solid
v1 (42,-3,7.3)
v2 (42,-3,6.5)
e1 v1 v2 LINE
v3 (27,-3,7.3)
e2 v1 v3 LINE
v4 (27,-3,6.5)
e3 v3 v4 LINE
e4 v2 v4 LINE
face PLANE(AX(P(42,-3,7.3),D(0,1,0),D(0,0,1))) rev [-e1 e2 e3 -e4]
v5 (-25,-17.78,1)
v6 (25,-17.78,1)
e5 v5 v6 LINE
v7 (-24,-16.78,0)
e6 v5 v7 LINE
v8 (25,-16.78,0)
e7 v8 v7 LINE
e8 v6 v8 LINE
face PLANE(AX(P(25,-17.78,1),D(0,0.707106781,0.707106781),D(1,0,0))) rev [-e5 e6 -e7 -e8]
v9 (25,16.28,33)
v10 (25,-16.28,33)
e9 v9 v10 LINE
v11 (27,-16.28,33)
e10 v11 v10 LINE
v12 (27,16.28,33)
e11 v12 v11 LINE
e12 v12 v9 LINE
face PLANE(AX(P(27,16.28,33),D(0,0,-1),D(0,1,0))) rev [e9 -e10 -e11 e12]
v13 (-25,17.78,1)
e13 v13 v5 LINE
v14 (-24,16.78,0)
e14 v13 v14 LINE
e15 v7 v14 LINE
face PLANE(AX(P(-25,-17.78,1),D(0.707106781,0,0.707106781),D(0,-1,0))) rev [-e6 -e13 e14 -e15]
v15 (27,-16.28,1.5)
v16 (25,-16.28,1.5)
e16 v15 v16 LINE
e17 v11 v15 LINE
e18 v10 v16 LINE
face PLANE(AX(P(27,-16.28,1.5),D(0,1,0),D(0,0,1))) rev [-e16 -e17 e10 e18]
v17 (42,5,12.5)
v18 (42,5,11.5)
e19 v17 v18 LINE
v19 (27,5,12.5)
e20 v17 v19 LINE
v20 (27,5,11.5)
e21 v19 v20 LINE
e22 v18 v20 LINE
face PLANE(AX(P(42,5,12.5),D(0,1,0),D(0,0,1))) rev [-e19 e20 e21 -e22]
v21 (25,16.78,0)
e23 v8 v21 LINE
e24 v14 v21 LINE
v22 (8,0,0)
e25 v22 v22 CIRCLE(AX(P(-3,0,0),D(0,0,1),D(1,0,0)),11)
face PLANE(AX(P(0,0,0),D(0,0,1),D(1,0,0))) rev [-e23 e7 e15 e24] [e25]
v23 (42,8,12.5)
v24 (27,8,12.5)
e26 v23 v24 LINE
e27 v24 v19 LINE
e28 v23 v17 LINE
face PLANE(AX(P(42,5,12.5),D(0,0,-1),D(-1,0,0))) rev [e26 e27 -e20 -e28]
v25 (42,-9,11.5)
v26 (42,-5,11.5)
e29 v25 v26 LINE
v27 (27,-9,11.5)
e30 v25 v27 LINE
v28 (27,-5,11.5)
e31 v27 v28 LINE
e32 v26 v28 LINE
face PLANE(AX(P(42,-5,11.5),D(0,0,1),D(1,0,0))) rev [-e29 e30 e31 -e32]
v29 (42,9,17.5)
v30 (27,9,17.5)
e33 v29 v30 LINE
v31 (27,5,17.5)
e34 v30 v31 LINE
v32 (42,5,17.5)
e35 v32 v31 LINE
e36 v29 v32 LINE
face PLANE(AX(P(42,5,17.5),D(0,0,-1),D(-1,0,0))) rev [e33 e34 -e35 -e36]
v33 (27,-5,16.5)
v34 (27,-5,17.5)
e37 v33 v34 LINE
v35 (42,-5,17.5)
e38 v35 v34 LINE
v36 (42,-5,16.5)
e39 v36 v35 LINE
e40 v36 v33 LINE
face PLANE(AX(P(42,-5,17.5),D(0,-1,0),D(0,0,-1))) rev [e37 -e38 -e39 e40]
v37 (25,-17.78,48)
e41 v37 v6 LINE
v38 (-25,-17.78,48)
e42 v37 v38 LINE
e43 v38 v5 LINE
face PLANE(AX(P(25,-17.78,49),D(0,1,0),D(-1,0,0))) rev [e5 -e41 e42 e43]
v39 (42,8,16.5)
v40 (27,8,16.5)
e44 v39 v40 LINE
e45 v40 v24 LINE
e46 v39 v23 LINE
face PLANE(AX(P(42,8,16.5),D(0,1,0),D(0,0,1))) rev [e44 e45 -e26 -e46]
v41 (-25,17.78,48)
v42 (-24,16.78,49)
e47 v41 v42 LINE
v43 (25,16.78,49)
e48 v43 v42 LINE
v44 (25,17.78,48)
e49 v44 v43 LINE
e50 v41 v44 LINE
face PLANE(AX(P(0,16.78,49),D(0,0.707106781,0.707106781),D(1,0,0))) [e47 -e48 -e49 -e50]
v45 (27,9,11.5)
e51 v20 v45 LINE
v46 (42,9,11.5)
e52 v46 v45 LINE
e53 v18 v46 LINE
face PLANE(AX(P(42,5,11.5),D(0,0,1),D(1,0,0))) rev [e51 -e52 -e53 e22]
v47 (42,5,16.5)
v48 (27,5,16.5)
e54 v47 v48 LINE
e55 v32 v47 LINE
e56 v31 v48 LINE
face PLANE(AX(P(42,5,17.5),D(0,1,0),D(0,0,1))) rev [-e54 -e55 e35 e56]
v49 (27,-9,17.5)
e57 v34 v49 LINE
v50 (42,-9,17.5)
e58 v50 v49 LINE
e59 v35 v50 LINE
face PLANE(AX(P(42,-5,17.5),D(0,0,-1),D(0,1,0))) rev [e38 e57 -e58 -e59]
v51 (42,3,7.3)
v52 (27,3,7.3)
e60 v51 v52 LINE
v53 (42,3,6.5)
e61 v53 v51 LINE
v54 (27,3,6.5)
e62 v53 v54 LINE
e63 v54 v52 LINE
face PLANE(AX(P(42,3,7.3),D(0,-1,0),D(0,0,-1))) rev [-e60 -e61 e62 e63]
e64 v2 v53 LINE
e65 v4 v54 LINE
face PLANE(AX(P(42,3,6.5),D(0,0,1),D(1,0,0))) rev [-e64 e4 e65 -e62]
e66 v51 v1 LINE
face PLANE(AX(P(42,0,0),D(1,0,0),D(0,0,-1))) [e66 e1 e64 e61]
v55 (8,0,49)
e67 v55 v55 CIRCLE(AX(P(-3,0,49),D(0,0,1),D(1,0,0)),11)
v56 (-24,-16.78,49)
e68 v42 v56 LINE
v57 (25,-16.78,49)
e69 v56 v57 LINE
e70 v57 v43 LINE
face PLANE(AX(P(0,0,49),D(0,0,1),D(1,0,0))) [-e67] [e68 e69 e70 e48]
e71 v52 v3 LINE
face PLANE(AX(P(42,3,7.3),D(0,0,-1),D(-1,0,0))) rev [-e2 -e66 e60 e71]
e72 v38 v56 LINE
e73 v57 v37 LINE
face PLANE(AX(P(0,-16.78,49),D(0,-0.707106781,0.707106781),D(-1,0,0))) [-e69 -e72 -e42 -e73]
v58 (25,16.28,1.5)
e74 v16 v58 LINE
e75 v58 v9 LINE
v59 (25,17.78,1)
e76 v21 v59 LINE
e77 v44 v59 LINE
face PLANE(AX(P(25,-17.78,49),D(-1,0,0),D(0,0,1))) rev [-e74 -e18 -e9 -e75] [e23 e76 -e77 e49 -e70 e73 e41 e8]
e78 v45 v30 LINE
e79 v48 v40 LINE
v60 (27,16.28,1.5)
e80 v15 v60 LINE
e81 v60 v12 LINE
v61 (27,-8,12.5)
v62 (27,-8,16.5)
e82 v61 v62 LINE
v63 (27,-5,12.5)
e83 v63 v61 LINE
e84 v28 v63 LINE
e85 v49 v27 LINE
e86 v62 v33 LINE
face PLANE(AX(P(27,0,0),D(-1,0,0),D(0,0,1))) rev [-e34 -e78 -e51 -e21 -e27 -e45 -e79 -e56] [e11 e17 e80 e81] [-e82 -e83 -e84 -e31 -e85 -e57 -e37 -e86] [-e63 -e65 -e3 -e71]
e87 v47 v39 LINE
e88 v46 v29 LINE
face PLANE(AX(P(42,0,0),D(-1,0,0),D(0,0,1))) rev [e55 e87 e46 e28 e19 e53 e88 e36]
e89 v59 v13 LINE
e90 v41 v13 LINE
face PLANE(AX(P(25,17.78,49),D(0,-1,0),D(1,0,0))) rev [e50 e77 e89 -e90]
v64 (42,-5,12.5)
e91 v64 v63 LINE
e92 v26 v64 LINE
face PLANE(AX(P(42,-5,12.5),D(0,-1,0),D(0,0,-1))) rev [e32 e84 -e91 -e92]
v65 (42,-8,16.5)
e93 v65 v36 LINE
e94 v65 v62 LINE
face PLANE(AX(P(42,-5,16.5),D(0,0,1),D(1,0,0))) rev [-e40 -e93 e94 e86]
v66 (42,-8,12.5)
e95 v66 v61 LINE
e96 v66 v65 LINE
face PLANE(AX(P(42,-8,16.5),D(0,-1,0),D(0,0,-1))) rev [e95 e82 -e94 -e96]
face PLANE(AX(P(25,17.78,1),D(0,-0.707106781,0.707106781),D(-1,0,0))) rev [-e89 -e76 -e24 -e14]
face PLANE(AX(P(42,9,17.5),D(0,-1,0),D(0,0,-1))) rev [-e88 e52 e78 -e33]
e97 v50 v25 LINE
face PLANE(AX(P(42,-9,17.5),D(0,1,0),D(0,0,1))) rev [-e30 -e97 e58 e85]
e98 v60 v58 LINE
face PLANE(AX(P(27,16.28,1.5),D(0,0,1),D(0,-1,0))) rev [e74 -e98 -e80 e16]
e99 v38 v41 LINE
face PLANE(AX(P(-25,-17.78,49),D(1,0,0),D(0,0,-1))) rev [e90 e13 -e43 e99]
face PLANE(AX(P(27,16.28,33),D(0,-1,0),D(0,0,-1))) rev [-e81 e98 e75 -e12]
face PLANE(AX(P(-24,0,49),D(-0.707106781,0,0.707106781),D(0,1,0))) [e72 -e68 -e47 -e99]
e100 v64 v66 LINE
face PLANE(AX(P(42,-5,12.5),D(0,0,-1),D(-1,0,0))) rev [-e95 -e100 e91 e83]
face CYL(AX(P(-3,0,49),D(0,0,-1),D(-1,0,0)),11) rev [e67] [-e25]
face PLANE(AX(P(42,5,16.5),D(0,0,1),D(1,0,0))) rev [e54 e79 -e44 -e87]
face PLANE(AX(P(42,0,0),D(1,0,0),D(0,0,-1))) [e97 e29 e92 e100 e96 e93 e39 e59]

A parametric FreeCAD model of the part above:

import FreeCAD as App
import Part
import Sketcher
from FreeCAD import Vector
Q = App.Units.Quantity


def edges_at(feature, points):
    """Names of the edges that pass closest to the given points."""
    edges = feature.Shape.Edges
    near = lambda p: min(range(len(edges)), key=lambda i: edges[i].distToShape(Part.Vertex(*p))[0])
    return sorted({f"Edge{near(p) + 1}" for p in points})


def add_polygon(sketch, points):
    """Adds a closed chain of lines whose ends are joined by coincident constraints."""
    first, n = sketch.GeometryCount, len(points)
    for a, b in zip(points, points[1:] + points[:1]):
        sketch.addGeometry(Part.LineSegment(App.Vector(*a, 0), App.Vector(*b, 0)), False)
    for i in range(n):
        sketch.addConstraint(Sketcher.Constraint("Coincident", first + i, 2, first + (i + 1) % n, 1))

doc = App.newDocument("Part")
params = doc.addObject("Spreadsheet::Sheet", "Params")
for row, (alias, value) in enumerate([
    ("sketch1_diameter", "22 mm"),
    ("sketch1_width", "50 mm"),
    ("sketch1_height", "35.56 mm"),
    ("pad1_length", "49 mm"),
    ("sketch2_height", "31.5 mm"),
    ("sketch2_width", "32.56 mm"),
    ("pad2_length", "2 mm"),
    ("sketch3_width", "3 mm"),
    ("sketch3_width2", "4 mm"),
    ("sketch3_width3", "6 mm"),
    ("sketch3_height", "0.8 mm"),
    ("pad3_length", "15 mm"),
    ("chamfer_size", "1 mm"),
], start=1):
    params.set(f"A{row}", alias)
    params.set(f"B{row}", "=" + value)
    params.setAlias(f"B{row}", alias)

body = doc.addObject("PartDesign::Body", "Body")

sketch1 = body.newObject("Sketcher::SketchObject", "Sketch")
sketch1.AttachmentSupport = (doc.getObject("XY_Plane"), [""])
sketch1.MapMode = "FlatFace"
add_polygon(sketch1, [(-25, 18), (-25, -18), (25, -18), (25, 18)])
sketch1.addGeometry(Part.Circle(Vector(-3, 0, 0), Vector(0, 0, 1), 11), False)
sketch1.addConstraint([
    Sketcher.Constraint("Vertical", 0),
    Sketcher.Constraint("Horizontal", 1),
    Sketcher.Constraint("Vertical", 2),
    Sketcher.Constraint("Horizontal", 3),
    Sketcher.Constraint("Symmetric", 0, 2, 2, 2, -1, 1),
    Sketcher.Constraint("PointOnObject", 4, 3, -1),
    Sketcher.Constraint("Diameter", 4, Q("22 mm")),
    Sketcher.Constraint("DistanceX", 1, 1, 1, 2, Q("50 mm")),
    Sketcher.Constraint("DistanceX", 4, 3, -1, 1, Q("3 mm")),
    Sketcher.Constraint("DistanceY", 0, 2, 0, 1, Q("35.56 mm")),
])
sketch1.setExpression("Constraints[10]", "Params.sketch1_diameter")
sketch1.setExpression("Constraints[11]", "Params.sketch1_width")
sketch1.setExpression("Constraints[13]", "Params.sketch1_height")
pad1 = body.newObject("PartDesign::Pad", "Pad")
pad1.Profile = sketch1
pad1.setExpression("Length", "Params.pad1_length")

sketch2 = body.newObject("Sketcher::SketchObject", "Sketch001")
sketch2.AttachmentSupport = (doc.getObject("YZ_Plane"), [""])
sketch2.MapMode = "FlatFace"
sketch2.AttachmentOffset = App.Placement(Vector(0, 0, 25), App.Rotation())
add_polygon(sketch2, [(16, 33), (-16, 33), (-16, 2), (16, 2)])
sketch2.addConstraint([
    Sketcher.Constraint("Horizontal", 0),
    Sketcher.Constraint("Vertical", 1),
    Sketcher.Constraint("Horizontal", 2),
    Sketcher.Constraint("Vertical", 3),
    Sketcher.Constraint("DistanceY", 1, 2, 1, 1, Q("31.5 mm")),
    Sketcher.Constraint("DistanceY", -1, 1, 0, 2, Q("33 mm")),
    Sketcher.Constraint("DistanceX", 0, 2, 0, 1, Q("32.56 mm")),
    Sketcher.Constraint("DistanceX", 0, 2, -1, 1, Q("16.28 mm")),
])
sketch2.setExpression("Constraints[8]", "Params.sketch2_height")
sketch2.setExpression("Constraints[10]", "Params.sketch2_width")
pad2 = body.newObject("PartDesign::Pad", "Pad001")
pad2.Profile = sketch2
pad2.setExpression("Length", "Params.pad2_length")

sketch3 = body.newObject("Sketcher::SketchObject", "Sketch002")
sketch3.AttachmentSupport = (doc.getObject("YZ_Plane"), [""])
sketch3.MapMode = "FlatFace"
sketch3.AttachmentOffset = App.Placement(Vector(0, 0, 27), App.Rotation())
add_polygon(sketch3, [(5, 16.5), (8, 16.5), (8, 12.5), (5, 12.5), (5, 11.5), (9, 11.5), (9, 17.5), (5, 17.5)])
add_polygon(sketch3, [(3, 7.3), (-3, 7.3), (-3, 6.5), (3, 6.5)])
add_polygon(sketch3, [(-5, 11.5), (-5, 12.5), (-8, 12.5), (-8, 16.5), (-5, 16.5), (-5, 17.5), (-9, 17.5), (-9, 11.5)])
sketch3.addConstraint([
    Sketcher.Constraint("Horizontal", 0),
    Sketcher.Constraint("Vertical", 1),
    Sketcher.Constraint("Horizontal", 2),
    Sketcher.Constraint("Vertical", 3),
    Sketcher.Constraint("Horizontal", 4),
    Sketcher.Constraint("Vertical", 5),
    Sketcher.Constraint("Horizontal", 6),
    Sketcher.Constraint("Vertical", 7),
    Sketcher.Constraint("Horizontal", 8),
    Sketcher.Constraint("Vertical", 9),
    Sketcher.Constraint("Horizontal", 10),
    Sketcher.Constraint("Vertical", 11),
    Sketcher.Constraint("Vertical", 12),
    Sketcher.Constraint("Horizontal", 13),
    Sketcher.Constraint("Vertical", 14),
    Sketcher.Constraint("Horizontal", 15),
    Sketcher.Constraint("Vertical", 16),
    Sketcher.Constraint("Horizontal", 17),
    Sketcher.Constraint("Vertical", 18),
    Sketcher.Constraint("Horizontal", 19),
    Sketcher.Constraint("Symmetric", 2, 2, 12, 2, -2),
    Sketcher.Constraint("Symmetric", 0, 2, 14, 2, -2),
    Sketcher.Constraint("Symmetric", 6, 2, 16, 2, -2),
    Sketcher.Constraint("Symmetric", 4, 2, 18, 2, -2),
    Sketcher.Constraint("Vertical", 3, 2, 6, 2),
    Sketcher.Constraint("Equal", 19, 1),
    Sketcher.Constraint("Equal", 10, 5),
    Sketcher.Constraint("Equal", 3, 7),
    Sketcher.Constraint("DistanceX", 0, 1, 0, 2, Q("3 mm")),
    Sketcher.Constraint("DistanceX", 4, 1, 4, 2, Q("4 mm")),
    Sketcher.Constraint("DistanceX", 8, 2, 8, 1, Q("6 mm")),
    Sketcher.Constraint("DistanceY", 9, 2, 9, 1, Q("0.8 mm")),
    Sketcher.Constraint("DistanceX", -1, 1, 0, 2, Q("8 mm")),
    Sketcher.Constraint("DistanceX", 8, 2, -1, 1, Q("3 mm")),
    Sketcher.Constraint("DistanceY", 9, 2, 3, 2, Q("5 mm")),
    Sketcher.Constraint("DistanceY", -1, 1, 0, 2, Q("16.5 mm")),
])
sketch3.setExpression("Constraints[48]", "Params.sketch3_width")
sketch3.setExpression("Constraints[49]", "Params.sketch3_width2")
sketch3.setExpression("Constraints[50]", "Params.sketch3_width3")
sketch3.setExpression("Constraints[51]", "Params.sketch3_height")
pad3 = body.newObject("PartDesign::Pad", "Pad002")
pad3.Profile = sketch3
pad3.setExpression("Length", "Params.pad3_length")
doc.recompute()

chamfer = body.newObject("PartDesign::Chamfer", "Chamfer")
chamfer.Base = (pad3, edges_at(pad3, [
    (0, 17.78, 49),
    (-25, 0, 49),
    (0, 17.78, 0),
    (0, -17.78, 0),
    (-25, 0, 0),
    (0, -17.78, 49),
]))
chamfer.setExpression("Size", "Params.chamfer_size")

doc.recompute()
